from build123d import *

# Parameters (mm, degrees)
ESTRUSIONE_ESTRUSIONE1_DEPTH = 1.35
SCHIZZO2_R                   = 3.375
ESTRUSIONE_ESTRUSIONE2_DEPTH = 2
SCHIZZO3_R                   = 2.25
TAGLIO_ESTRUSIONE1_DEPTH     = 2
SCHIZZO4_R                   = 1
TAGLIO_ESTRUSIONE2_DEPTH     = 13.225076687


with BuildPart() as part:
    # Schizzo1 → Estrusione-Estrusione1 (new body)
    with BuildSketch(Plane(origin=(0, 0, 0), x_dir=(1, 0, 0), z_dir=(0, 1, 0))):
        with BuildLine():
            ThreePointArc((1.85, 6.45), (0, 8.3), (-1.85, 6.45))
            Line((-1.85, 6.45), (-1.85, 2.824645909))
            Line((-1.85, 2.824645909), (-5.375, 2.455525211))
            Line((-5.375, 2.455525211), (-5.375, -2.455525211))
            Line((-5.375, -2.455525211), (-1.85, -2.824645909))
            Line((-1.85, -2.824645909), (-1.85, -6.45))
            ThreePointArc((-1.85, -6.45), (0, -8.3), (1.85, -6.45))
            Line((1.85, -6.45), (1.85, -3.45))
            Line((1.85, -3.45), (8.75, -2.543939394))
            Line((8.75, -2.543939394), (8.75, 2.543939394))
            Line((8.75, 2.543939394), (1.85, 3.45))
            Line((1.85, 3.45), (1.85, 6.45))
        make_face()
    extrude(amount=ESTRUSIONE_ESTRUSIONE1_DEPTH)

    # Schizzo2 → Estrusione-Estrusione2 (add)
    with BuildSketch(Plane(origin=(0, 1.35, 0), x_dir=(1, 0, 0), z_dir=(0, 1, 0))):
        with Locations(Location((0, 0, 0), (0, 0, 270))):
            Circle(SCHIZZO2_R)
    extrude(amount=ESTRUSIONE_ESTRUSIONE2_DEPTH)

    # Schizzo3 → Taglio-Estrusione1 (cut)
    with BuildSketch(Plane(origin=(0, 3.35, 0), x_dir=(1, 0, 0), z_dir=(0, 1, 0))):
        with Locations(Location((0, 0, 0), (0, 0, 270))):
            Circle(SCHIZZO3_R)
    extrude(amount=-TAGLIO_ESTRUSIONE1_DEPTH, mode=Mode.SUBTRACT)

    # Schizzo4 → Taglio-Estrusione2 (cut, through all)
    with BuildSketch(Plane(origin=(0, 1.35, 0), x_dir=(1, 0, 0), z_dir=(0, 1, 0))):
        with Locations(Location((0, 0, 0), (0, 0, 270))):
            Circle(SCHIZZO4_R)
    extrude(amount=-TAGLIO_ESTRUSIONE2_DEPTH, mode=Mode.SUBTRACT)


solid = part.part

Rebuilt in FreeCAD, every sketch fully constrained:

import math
import FreeCAD as App
import Part
import Sketcher

V = App.Vector
Q = App.Units.Quantity

doc = App.newDocument("Part")
body = doc.addObject("PartDesign::Body", "Body")

sketch1 = body.newObject("Sketcher::SketchObject", "Sketch")
sketch1.AttachmentSupport = (doc.getObject("XZ_Plane"), [""])
sketch1.MapMode = "FlatFace"
sketch1.addGeometry([
    Part.ArcOfCircle(Part.Circle(V(0, -6.45, 0), V(0, 0, 1), 1.85), math.radians(180), math.radians(360)),
    Part.LineSegment(V(-1.85, -6.45, 0), V(-1.85, -2.824646, 0)),
    Part.LineSegment(V(-1.85, -2.824646, 0), V(-5.375, -2.455525, 0)),
    Part.LineSegment(V(-5.375, -2.455525, 0), V(-5.375, 2.455525, 0)),
    Part.LineSegment(V(-5.375, 2.455525, 0), V(-1.85, 2.824646, 0)),
    Part.LineSegment(V(-1.85, 2.824646, 0), V(-1.85, 6.45, 0)),
    Part.ArcOfCircle(Part.Circle(V(0, 6.45, 0), V(0, 0, 1), 1.85), math.radians(0), math.radians(180)),
    Part.LineSegment(V(1.85, 6.45, 0), V(1.85, 3.45, 0)),
    Part.LineSegment(V(1.85, 3.45, 0), V(8.75, 2.543939, 0)),
    Part.LineSegment(V(8.75, 2.543939, 0), V(8.75, -2.543939, 0)),
    Part.LineSegment(V(8.75, -2.543939, 0), V(1.85, -3.45, 0)),
    Part.LineSegment(V(1.85, -3.45, 0), V(1.85, -6.45, 0)),
], False)
sketch1.addConstraint([
    Sketcher.Constraint("Tangent", 0, 1, 1, 1),
    Sketcher.Constraint("Coincident", 1, 2, 2, 1),
    Sketcher.Constraint("Coincident", 2, 2, 3, 1),
    Sketcher.Constraint("Coincident", 3, 2, 4, 1),
    Sketcher.Constraint("Coincident", 4, 2, 5, 1),
    Sketcher.Constraint("Tangent", 5, 2, 6, 2),
    Sketcher.Constraint("Tangent", 6, 1, 7, 1),
    Sketcher.Constraint("Coincident", 7, 2, 8, 1),
    Sketcher.Constraint("Coincident", 8, 2, 9, 1),
    Sketcher.Constraint("Coincident", 9, 2, 10, 1),
    Sketcher.Constraint("Coincident", 10, 2, 11, 1),
    Sketcher.Constraint("Tangent", 11, 2, 0, 2),
    Sketcher.Constraint("Vertical", 1),
    Sketcher.Constraint("Vertical", 3),
    Sketcher.Constraint("Vertical", 5),
    Sketcher.Constraint("Vertical", 7),
    Sketcher.Constraint("Vertical", 9),
    Sketcher.Constraint("Vertical", 11),
    Sketcher.Constraint("Equal", 0, 6),
    Sketcher.Constraint("Symmetric", 0, 3, 6, 3, -1, 1),
    Sketcher.Constraint("Symmetric", 1, 2, 4, 2, -1),
    Sketcher.Constraint("Equal", 7, 11),
    Sketcher.Constraint("Equal", 2, 4),
    Sketcher.Constraint("Equal", 8, 10),
    Sketcher.Constraint("DistanceY", 7, 2, 7, 1, Q("3 mm")),
    Sketcher.Constraint("Radius", 0, Q("1.85 mm")),
    Sketcher.Constraint("DistanceY", 0, 3, 6, 3, Q("12.9 mm")),
    Sketcher.Constraint("DistanceX", 7, 2, 8, 2, Q("6.9 mm")),
    Sketcher.Constraint("DistanceX", 2, 2, -1, 1, Q("5.375 mm")),
    Sketcher.Constraint("DistanceY", 3, 1, 3, 2, Q("4.91105 mm")),
    Sketcher.Constraint("DistanceY", 9, 2, 9, 1, Q("5.087879 mm")),
    Sketcher.Constraint("DistanceY", 1, 1, 1, 2, Q("3.625354 mm")),
])
pad1 = body.newObject("PartDesign::Pad", "Pad")
pad1.Profile = sketch1
pad1.Length = 1.35
pad1.Reversed = True

sketch2 = body.newObject("Sketcher::SketchObject", "Sketch001")
sketch2.AttachmentSupport = (doc.getObject("XZ_Plane"), [""])
sketch2.MapMode = "FlatFace"
sketch2.AttachmentOffset = App.Placement(V(0, 0, -1.35), App.Rotation())
sketch2.addGeometry(Part.Circle(V(0, 0, 0), V(0, 0, 1), 3.375), False)
sketch2.addConstraint([
    Sketcher.Constraint("Coincident", 0, 3, -1, 1),
    Sketcher.Constraint("Diameter", 0, Q("6.75 mm")),
])
pad2 = body.newObject("PartDesign::Pad", "Pad001")
pad2.Profile = sketch2
pad2.Length = 2
pad2.Reversed = True

sketch3 = body.newObject("Sketcher::SketchObject", "Sketch002")
sketch3.AttachmentSupport = (doc.getObject("XZ_Plane"), [""])
sketch3.MapMode = "FlatFace"
sketch3.AttachmentOffset = App.Placement(V(0, 0, -3.35), App.Rotation())
sketch3.addGeometry(Part.Circle(V(0, 0, 0), V(0, 0, 1), 2.25), False)
sketch3.addConstraint([
    Sketcher.Constraint("Coincident", 0, 3, -1, 1),
    Sketcher.Constraint("Diameter", 0, Q("4.5 mm")),
])
pocket1 = body.newObject("PartDesign::Pocket", "Pocket")
pocket1.Profile = sketch3
pocket1.Length = 2
pocket1.Reversed = True

sketch4 = body.newObject("Sketcher::SketchObject", "Sketch003")
sketch4.AttachmentSupport = (doc.getObject("XZ_Plane"), [""])
sketch4.MapMode = "FlatFace"
sketch4.AttachmentOffset = App.Placement(V(0, 0, -1.35), App.Rotation())
sketch4.addGeometry(Part.Circle(V(0, 0, 0), V(0, 0, 1), 1), False)
sketch4.addConstraint([
    Sketcher.Constraint("Coincident", 0, 3, -1, 1),
    Sketcher.Constraint("Diameter", 0, Q("2 mm")),
])
pocket2 = body.newObject("PartDesign::Pocket", "Pocket001")
pocket2.Profile = sketch4
pocket2.Type = "ThroughAll"
pocket2.Reversed = True

doc.recompute()
